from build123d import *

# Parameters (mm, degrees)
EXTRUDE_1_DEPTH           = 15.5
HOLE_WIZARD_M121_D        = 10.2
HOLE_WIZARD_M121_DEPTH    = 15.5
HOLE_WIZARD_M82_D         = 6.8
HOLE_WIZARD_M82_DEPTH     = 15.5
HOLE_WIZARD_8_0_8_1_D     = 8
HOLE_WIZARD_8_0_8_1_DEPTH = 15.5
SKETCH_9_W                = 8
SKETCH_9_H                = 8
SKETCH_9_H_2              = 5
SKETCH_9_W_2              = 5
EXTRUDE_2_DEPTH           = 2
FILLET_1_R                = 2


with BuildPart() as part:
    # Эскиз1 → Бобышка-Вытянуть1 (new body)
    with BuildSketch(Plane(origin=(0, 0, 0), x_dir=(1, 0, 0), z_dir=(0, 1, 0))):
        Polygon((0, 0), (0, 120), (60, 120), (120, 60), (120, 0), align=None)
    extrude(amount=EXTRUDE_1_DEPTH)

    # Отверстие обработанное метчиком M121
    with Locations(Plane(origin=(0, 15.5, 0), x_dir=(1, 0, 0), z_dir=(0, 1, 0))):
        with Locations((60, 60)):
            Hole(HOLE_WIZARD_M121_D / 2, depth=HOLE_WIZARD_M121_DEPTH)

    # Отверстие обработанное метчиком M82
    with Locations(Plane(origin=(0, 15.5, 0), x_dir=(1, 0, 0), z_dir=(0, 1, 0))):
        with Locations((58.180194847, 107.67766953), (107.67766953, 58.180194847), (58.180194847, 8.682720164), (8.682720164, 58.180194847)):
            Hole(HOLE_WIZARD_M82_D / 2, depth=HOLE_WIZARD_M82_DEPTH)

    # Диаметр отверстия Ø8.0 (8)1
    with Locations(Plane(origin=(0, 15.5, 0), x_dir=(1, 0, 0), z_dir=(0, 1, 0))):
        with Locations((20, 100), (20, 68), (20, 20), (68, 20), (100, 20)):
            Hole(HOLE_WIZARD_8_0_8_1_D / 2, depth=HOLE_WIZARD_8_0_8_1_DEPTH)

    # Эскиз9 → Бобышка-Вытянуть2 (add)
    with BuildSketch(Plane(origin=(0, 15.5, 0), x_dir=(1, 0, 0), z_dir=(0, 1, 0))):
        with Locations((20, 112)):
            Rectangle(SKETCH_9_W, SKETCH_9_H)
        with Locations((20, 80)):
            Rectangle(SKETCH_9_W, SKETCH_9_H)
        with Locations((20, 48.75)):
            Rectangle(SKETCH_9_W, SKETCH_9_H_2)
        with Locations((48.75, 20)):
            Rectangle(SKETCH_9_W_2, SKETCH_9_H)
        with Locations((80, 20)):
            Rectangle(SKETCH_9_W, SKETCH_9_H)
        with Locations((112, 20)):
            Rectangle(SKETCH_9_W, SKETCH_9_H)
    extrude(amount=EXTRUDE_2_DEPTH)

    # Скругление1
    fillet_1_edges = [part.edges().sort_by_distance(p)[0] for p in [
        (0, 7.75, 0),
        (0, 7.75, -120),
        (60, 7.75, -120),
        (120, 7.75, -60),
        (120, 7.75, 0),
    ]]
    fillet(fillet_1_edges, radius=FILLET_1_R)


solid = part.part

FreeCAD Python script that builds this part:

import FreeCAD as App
import Part
import Sketcher

V = App.Vector


def edges_at(feature, points):
    """Names of the edges that pass closest to the given points."""
    edges = feature.Shape.Edges
    near = lambda p: min(range(len(edges)), key=lambda i: edges[i].distToShape(Part.Vertex(*p))[0])
    return sorted({f"Edge{near(p) + 1}" for p in points})


def add_polygon(sketch, points):
    """Adds a closed chain of lines whose ends are joined by coincident constraints."""
    first, n = sketch.GeometryCount, len(points)
    for a, b in zip(points, points[1:] + points[:1]):
        sketch.addGeometry(Part.LineSegment(App.Vector(*a, 0), App.Vector(*b, 0)), False)
    for i in range(n):
        sketch.addConstraint(Sketcher.Constraint("Coincident", first + i, 2, first + (i + 1) % n, 1))

doc = App.newDocument("Part")
body = doc.addObject("PartDesign::Body", "Body")

# Sketch on XZ plane
sketch1 = body.newObject("Sketcher::SketchObject", "Sketch")
sketch1.AttachmentSupport = (doc.getObject("XZ_Plane"), [""])
sketch1.MapMode = "FlatFace"
add_polygon(sketch1, [(0, -120), (0, 0), (120, 0), (120, -60), (60, -120)])  # lines 0-4
sketch1.addConstraint(Sketcher.Constraint("Vertical", 0))
sketch1.addConstraint(Sketcher.Constraint("Horizontal", 1))
sketch1.addConstraint(Sketcher.Constraint("Vertical", 2))
sketch1.addConstraint(Sketcher.Constraint("Horizontal", 4))
sketch1.addConstraint(Sketcher.Constraint("Coincident", 0, 2, -1, 1))
sketch1.addConstraint(Sketcher.Constraint("Equal", 1, 0))
sketch1.addConstraint(Sketcher.Constraint("Equal", 4, 2))
sketch1.addConstraint(Sketcher.Constraint("DistanceX", 1, 1, 1, 2, 120.0))
sketch1.addConstraint(Sketcher.Constraint("DistanceX", 4, 2, 4, 1, 60.0))
pad1 = body.newObject("PartDesign::Pad", "Pad")
pad1.Profile = sketch1
pad1.Length = 15.5
pad1.Reversed = True

# Sketch on XZ plane
sketch2 = body.newObject("Sketcher::SketchObject", "Sketch001")
sketch2.AttachmentSupport = (doc.getObject("XZ_Plane"), [""])
sketch2.MapMode = "FlatFace"
sketch2.AttachmentOffset = App.Placement(V(0, 0, -15.5), App.Rotation())
sketch2.addGeometry(Part.Circle(V(60, -60, 0), V(0, 0, 1), 5), False)
sketch2.addConstraint(Sketcher.Constraint("Diameter", 0, 10.2))
sketch2.addConstraint(Sketcher.Constraint("DistanceX", -1, 1, 0, 3, 60.0))
sketch2.addConstraint(Sketcher.Constraint("DistanceY", 0, 3, -1, 1, 60.0))
doc.recompute()
hole = body.newObject("PartDesign::Hole", "Hole")
hole.Profile = sketch2
hole.ThreadType = "None"
hole.Diameter = 10.2
hole.DepthType = "Dimension"
hole.Depth = 15.5
hole.DrillPoint = "Flat"
hole.Reversed = True

# Sketch on XZ plane
sketch3 = body.newObject("Sketcher::SketchObject", "Sketch002")
sketch3.AttachmentSupport = (doc.getObject("XZ_Plane"), [""])
sketch3.MapMode = "FlatFace"
sketch3.AttachmentOffset = App.Placement(V(0, 0, -15.5), App.Rotation())
sketch3.addGeometry(Part.Circle(V(58.2, -107.7, 0), V(0, 0, 1), 3.4), False)
sketch3.addGeometry(Part.Circle(V(107.7, -58.2, 0), V(0, 0, 1), 3.4), False)
sketch3.addGeometry(Part.Circle(V(58.2, -8.7, 0), V(0, 0, 1), 3.4), False)
sketch3.addGeometry(Part.Circle(V(8.7, -58.2, 0), V(0, 0, 1), 3.4), False)
sketch3.addConstraint(Sketcher.Constraint("Equal", 0, 1))
sketch3.addConstraint(Sketcher.Constraint("Equal", 1, 2))
sketch3.addConstraint(Sketcher.Constraint("Equal", 2, 3))
sketch3.addConstraint(Sketcher.Constraint("Horizontal", 1, 3, 3, 3))
sketch3.addConstraint(Sketcher.Constraint("Vertical", 0, 3, 2, 3))
sketch3.addConstraint(Sketcher.Constraint("Diameter", 0, 6.8))
sketch3.addConstraint(Sketcher.Constraint("DistanceY", 0, 3, -1, 1, 107.67767))
sketch3.addConstraint(Sketcher.Constraint("DistanceX", -1, 1, 1, 3, 107.67767))
sketch3.addConstraint(Sketcher.Constraint("DistanceY", 2, 3, -1, 1, 8.68272))
sketch3.addConstraint(Sketcher.Constraint("DistanceX", -1, 1, 3, 3, 8.68272))
sketch3.addConstraint(Sketcher.Constraint("DistanceX", -1, 1, 0, 3, 58.180195))
sketch3.addConstraint(Sketcher.Constraint("DistanceY", 1, 3, -1, 1, 58.180195))
doc.recompute()
hole2 = body.newObject("PartDesign::Hole", "Hole001")
hole2.Profile = sketch3
hole2.ThreadType = "None"
hole2.Diameter = 6.8
hole2.DepthType = "Dimension"
hole2.Depth = 15.5
hole2.DrillPoint = "Flat"
hole2.Reversed = True

# Sketch on XZ plane
sketch4 = body.newObject("Sketcher::SketchObject", "Sketch003")
sketch4.AttachmentSupport = (doc.getObject("XZ_Plane"), [""])
sketch4.MapMode = "FlatFace"
sketch4.AttachmentOffset = App.Placement(V(0, 0, -15.5), App.Rotation())
sketch4.addGeometry(Part.Circle(V(20, -100, 0), V(0, 0, 1), 4), False)
sketch4.addGeometry(Part.Circle(V(20, -68, 0), V(0, 0, 1), 4), False)
sketch4.addGeometry(Part.Circle(V(20, -20, 0), V(0, 0, 1), 4), False)
sketch4.addGeometry(Part.Circle(V(68, -20, 0), V(0, 0, 1), 4), False)
sketch4.addGeometry(Part.Circle(V(100, -20, 0), V(0, 0, 1), 4), False)
sketch4.addConstraint(Sketcher.Constraint("Equal", 0, 1))
sketch4.addConstraint(Sketcher.Constraint("Equal", 1, 2))
sketch4.addConstraint(Sketcher.Constraint("Equal", 2, 3))
sketch4.addConstraint(Sketcher.Constraint("Equal", 3, 4))
sketch4.addConstraint(Sketcher.Constraint("Horizontal", 2, 3, 3, 3))
sketch4.addConstraint(Sketcher.Constraint("Horizontal", 3, 3, 4, 3))
sketch4.addConstraint(Sketcher.Constraint("Vertical", 0, 3, 1, 3))
sketch4.addConstraint(Sketcher.Constraint("Vertical", 1, 3, 2, 3))
sketch4.addConstraint(Sketcher.Constraint("Diameter", 0, 8.0))
sketch4.addConstraint(Sketcher.Constraint("DistanceX", -1, 1, 0, 3, 20.0))
sketch4.addConstraint(Sketcher.Constraint("DistanceY", 0, 3, -1, 1, 100.0))
sketch4.addConstraint(Sketcher.Constraint("DistanceY", 1, 3, -1, 1, 68.0))
sketch4.addConstraint(Sketcher.Constraint("DistanceY", 2, 3, -1, 1, 20.0))
sketch4.addConstraint(Sketcher.Constraint("DistanceX", -1, 1, 3, 3, 68.0))
sketch4.addConstraint(Sketcher.Constraint("DistanceX", -1, 1, 4, 3, 100.0))
doc.recompute()
hole3 = body.newObject("PartDesign::Hole", "Hole002")
hole3.Profile = sketch4
hole3.ThreadType = "None"
hole3.Diameter = 8
hole3.DepthType = "Dimension"
hole3.Depth = 15.5
hole3.DrillPoint = "Flat"
hole3.Reversed = True

# Sketch on XZ plane
sketch5 = body.newObject("Sketcher::SketchObject", "Sketch004")
sketch5.AttachmentSupport = (doc.getObject("XZ_Plane"), [""])
sketch5.MapMode = "FlatFace"
sketch5.AttachmentOffset = App.Placement(V(0, 0, -15.5), App.Rotation())
add_polygon(sketch5, [(16, -116), (16, -108), (24, -108), (24, -116)])  # lines 0-3
add_polygon(sketch5, [(16, -84), (16, -76), (24, -76), (24, -84)])  # lines 4-7
add_polygon(sketch5, [(16, -51), (16, -46), (24, -46), (24, -51)])  # lines 8-11
add_polygon(sketch5, [(46, -24), (46, -16), (51, -16), (51, -24)])  # lines 12-15
add_polygon(sketch5, [(76, -24), (76, -16), (84, -16), (84, -24)])  # lines 16-19
add_polygon(sketch5, [(108, -24), (108, -16), (116, -16), (116, -24)])  # lines 20-23
sketch5.addConstraint(Sketcher.Constraint("Vertical", 0))
sketch5.addConstraint(Sketcher.Constraint("Horizontal", 1))
sketch5.addConstraint(Sketcher.Constraint("Vertical", 2))
sketch5.addConstraint(Sketcher.Constraint("Horizontal", 3))
sketch5.addConstraint(Sketcher.Constraint("Vertical", 4))
sketch5.addConstraint(Sketcher.Constraint("Horizontal", 5))
sketch5.addConstraint(Sketcher.Constraint("Vertical", 6))
sketch5.addConstraint(Sketcher.Constraint("Horizontal", 7))
sketch5.addConstraint(Sketcher.Constraint("Vertical", 8))
sketch5.addConstraint(Sketcher.Constraint("Horizontal", 9))
sketch5.addConstraint(Sketcher.Constraint("Vertical", 10))
sketch5.addConstraint(Sketcher.Constraint("Horizontal", 11))
sketch5.addConstraint(Sketcher.Constraint("Vertical", 12))
sketch5.addConstraint(Sketcher.Constraint("Horizontal", 13))
sketch5.addConstraint(Sketcher.Constraint("Vertical", 14))
sketch5.addConstraint(Sketcher.Constraint("Horizontal", 15))
sketch5.addConstraint(Sketcher.Constraint("Vertical", 16))
sketch5.addConstraint(Sketcher.Constraint("Horizontal", 17))
sketch5.addConstraint(Sketcher.Constraint("Vertical", 18))
sketch5.addConstraint(Sketcher.Constraint("Horizontal", 19))
sketch5.addConstraint(Sketcher.Constraint("Vertical", 20))
sketch5.addConstraint(Sketcher.Constraint("Horizontal", 21))
sketch5.addConstraint(Sketcher.Constraint("Vertical", 22))
sketch5.addConstraint(Sketcher.Constraint("Horizontal", 23))
sketch5.addConstraint(Sketcher.Constraint("Horizontal", 13, 2, 16, 2))
sketch5.addConstraint(Sketcher.Constraint("Horizontal", 15, 2, 18, 2))
sketch5.addConstraint(Sketcher.Constraint("Horizontal", 17, 2, 20, 2))
sketch5.addConstraint(Sketcher.Constraint("Horizontal", 19, 2, 22, 2))
sketch5.addConstraint(Sketcher.Constraint("Vertical", 3, 2, 4, 2))
sketch5.addConstraint(Sketcher.Constraint("Vertical", 2, 2, 5, 2))
sketch5.addConstraint(Sketcher.Constraint("Vertical", 7, 2, 8, 2))
sketch5.addConstraint(Sketcher.Constraint("Vertical", 6, 2, 9, 2))
sketch5.addConstraint(Sketcher.Constraint("Equal", 11, 17))
sketch5.addConstraint(Sketcher.Constraint("Equal", 19, 21))
sketch5.addConstraint(Sketcher.Constraint("Equal", 23, 0))
sketch5.addConstraint(Sketcher.Constraint("Equal", 2, 4))
sketch5.addConstraint(Sketcher.Constraint("Equal", 15, 8))
sketch5.addConstraint(Sketcher.Constraint("Equal", 6, 12))
sketch5.addConstraint(Sketcher.Constraint("DistanceX", 1, 1, 1, 2, 8.0))
sketch5.addConstraint(Sketcher.Constraint("DistanceX", 13, 1, 13, 2, 5.0))
sketch5.addConstraint(Sketcher.Constraint("DistanceX", -1, 1, 0, 2, 16.0))
sketch5.addConstraint(Sketcher.Constraint("DistanceY", 0, 2, -1, 1, 108.0))
sketch5.addConstraint(Sketcher.Constraint("DistanceY", 4, 2, -1, 1, 76.0))
sketch5.addConstraint(Sketcher.Constraint("DistanceY", 12, 2, -1, 1, 16.0))
sketch5.addConstraint(Sketcher.Constraint("DistanceX", -1, 1, 16, 2, 76.0))
sketch5.addConstraint(Sketcher.Constraint("DistanceX", -1, 1, 20, 2, 108.0))
sketch5.addConstraint(Sketcher.Constraint("DistanceY", 8, 2, -1, 1, 46.25))
sketch5.addConstraint(Sketcher.Constraint("DistanceX", -1, 1, 12, 2, 46.25))
pad2 = body.newObject("PartDesign::Pad", "Pad001")
pad2.Profile = sketch5
pad2.Length = 2
pad2.Reversed = True
doc.recompute()

fillet = body.newObject("PartDesign::Fillet", "Fillet")
fillet.Base = (pad2, edges_at(pad2, [
    (0, 7.75, 0),
    (0, 7.75, -120),
    (60, 7.75, -120),
    (120, 7.75, -60),
    (120, 7.75, 0),
]))
fillet.Radius = 2

doc.recompute()
